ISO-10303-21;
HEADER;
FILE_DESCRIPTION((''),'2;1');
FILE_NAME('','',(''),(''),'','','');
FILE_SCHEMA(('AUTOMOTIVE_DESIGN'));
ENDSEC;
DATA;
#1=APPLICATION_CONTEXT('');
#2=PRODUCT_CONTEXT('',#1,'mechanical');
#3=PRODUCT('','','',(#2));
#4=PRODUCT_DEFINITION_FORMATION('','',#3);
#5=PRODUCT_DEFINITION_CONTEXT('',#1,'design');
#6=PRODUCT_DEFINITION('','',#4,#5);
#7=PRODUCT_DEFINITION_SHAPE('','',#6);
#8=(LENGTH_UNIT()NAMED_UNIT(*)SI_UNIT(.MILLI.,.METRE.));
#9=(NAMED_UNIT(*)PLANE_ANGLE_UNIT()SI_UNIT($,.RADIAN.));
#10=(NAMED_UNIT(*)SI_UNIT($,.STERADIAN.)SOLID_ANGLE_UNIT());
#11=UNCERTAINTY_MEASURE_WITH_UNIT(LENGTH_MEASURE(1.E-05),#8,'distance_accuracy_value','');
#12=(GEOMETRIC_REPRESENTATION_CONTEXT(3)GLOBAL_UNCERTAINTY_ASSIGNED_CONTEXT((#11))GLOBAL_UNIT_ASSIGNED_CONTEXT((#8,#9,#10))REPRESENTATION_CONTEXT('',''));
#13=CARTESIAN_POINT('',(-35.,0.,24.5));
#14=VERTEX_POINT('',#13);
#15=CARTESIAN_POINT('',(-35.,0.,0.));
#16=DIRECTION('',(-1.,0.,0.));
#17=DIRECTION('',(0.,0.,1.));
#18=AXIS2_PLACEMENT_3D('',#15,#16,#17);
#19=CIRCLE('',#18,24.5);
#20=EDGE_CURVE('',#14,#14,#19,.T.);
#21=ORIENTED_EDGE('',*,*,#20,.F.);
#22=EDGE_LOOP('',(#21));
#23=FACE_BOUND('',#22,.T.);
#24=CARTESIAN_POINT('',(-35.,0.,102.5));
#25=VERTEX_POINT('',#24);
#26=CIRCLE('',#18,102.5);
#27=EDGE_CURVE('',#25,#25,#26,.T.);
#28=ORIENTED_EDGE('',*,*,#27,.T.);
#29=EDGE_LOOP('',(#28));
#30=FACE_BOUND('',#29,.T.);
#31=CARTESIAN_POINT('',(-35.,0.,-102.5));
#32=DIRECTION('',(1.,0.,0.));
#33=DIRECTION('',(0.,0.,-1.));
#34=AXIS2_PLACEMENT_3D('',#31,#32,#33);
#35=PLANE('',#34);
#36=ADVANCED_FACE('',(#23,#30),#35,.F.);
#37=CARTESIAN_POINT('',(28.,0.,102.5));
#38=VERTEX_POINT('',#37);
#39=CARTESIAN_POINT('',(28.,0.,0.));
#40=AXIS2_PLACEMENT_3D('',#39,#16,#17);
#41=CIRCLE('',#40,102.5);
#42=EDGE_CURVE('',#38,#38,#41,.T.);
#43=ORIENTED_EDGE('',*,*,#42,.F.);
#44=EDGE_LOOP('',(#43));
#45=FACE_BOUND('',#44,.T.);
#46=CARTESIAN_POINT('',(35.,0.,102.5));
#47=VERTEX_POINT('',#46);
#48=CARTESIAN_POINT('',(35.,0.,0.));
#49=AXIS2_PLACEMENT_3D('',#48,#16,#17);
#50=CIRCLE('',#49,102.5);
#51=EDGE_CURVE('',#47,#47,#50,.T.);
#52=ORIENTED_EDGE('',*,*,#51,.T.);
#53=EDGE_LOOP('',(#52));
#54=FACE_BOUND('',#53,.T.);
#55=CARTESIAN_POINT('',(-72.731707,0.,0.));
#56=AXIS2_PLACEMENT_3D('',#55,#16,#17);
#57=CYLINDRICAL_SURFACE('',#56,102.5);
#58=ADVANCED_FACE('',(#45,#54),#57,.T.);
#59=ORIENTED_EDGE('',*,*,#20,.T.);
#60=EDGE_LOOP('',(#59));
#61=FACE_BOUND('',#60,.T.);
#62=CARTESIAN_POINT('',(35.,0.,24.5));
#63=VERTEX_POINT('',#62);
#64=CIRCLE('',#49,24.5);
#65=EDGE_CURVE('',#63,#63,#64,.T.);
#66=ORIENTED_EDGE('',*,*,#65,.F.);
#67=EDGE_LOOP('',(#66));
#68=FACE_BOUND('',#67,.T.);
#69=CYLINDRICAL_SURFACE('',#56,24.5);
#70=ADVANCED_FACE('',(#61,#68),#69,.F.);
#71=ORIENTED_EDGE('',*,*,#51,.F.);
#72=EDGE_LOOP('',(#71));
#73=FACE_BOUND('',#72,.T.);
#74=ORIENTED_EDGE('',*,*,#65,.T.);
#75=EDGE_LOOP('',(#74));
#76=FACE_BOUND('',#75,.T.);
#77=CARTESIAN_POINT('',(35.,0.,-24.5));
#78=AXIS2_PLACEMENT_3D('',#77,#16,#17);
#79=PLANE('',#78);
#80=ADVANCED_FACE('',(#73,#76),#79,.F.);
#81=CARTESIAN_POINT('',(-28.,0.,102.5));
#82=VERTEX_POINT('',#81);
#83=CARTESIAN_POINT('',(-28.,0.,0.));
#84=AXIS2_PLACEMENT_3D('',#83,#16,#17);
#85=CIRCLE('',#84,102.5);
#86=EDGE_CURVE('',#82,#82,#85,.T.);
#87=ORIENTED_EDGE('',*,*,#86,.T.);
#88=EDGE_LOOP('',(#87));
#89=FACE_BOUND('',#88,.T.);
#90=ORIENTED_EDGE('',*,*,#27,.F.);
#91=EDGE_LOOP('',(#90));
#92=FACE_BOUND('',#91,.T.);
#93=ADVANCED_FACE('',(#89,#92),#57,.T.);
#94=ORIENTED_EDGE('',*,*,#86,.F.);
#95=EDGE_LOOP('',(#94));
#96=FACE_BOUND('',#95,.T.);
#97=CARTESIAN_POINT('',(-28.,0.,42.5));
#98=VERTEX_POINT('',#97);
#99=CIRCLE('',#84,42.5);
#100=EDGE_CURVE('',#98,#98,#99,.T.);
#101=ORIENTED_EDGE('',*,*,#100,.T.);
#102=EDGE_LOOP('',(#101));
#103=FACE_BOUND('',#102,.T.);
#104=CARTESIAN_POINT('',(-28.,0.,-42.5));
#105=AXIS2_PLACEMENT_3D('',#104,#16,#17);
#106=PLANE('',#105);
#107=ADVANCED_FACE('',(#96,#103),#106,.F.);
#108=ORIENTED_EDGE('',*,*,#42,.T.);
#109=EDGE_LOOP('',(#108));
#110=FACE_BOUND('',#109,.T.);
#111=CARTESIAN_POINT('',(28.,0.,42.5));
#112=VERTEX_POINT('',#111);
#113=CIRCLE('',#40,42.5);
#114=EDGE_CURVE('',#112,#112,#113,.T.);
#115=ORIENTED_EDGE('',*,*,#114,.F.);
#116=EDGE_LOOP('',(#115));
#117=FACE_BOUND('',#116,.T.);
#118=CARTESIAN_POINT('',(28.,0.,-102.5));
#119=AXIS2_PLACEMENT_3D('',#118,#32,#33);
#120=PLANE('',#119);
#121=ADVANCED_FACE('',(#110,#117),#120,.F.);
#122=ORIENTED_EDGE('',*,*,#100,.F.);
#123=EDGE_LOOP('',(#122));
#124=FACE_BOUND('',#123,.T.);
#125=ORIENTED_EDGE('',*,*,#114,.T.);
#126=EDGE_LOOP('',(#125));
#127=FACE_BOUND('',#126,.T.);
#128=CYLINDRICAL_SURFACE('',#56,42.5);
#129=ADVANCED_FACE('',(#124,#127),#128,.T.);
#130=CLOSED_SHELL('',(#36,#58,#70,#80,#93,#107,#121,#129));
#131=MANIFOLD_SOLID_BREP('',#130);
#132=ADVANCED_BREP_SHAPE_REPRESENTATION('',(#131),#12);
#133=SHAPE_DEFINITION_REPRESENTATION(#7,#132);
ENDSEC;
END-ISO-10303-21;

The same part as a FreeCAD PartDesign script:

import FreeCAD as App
import Part
import Sketcher
from FreeCAD import Vector


def add_polygon(sketch, points):
    """Adds a closed chain of lines whose ends are joined by coincident constraints."""
    first, n = sketch.GeometryCount, len(points)
    for a, b in zip(points, points[1:] + points[:1]):
        sketch.addGeometry(Part.LineSegment(App.Vector(*a, 0), App.Vector(*b, 0)), False)
    for i in range(n):
        sketch.addConstraint(Sketcher.Constraint("Coincident", first + i, 2, first + (i + 1) % n, 1))

doc = App.newDocument("Part")
body = doc.addObject("PartDesign::Body", "Body")

# Sketch on XZ plane
sketch1 = body.newObject("Sketcher::SketchObject", "Sketch")
sketch1.AttachmentSupport = (doc.getObject("XZ_Plane"), [""])
sketch1.MapMode = "FlatFace"
add_polygon(sketch1, [(-35, -102), (-35, -24), (35, -24), (35, -102), (28, -102), (28, -42), (-28, -42), (-28, -102)])  # lines 0-7
sketch1.addConstraint([
    Sketcher.Constraint("Vertical", 0),
    Sketcher.Constraint("Horizontal", 1),
    Sketcher.Constraint("Vertical", 2),
    Sketcher.Constraint("Horizontal", 3),
    Sketcher.Constraint("Vertical", 4),
    Sketcher.Constraint("Horizontal", 5),
    Sketcher.Constraint("Vertical", 6),
    Sketcher.Constraint("Horizontal", 7),
    Sketcher.Constraint("Symmetric", 3, 2, 6, 2, -2),
    Sketcher.Constraint("Equal", 3, 7),
    Sketcher.Constraint("DistanceX", 1, 1, 1, 2, 70.0),
    Sketcher.Constraint("DistanceX", 3, 2, 3, 1, 7.0),
    Sketcher.Constraint("DistanceY", 0, 1, 0, 2, 78.0),
    Sketcher.Constraint("DistanceY", 4, 1, 4, 2, 60.0),
    Sketcher.Constraint("DistanceY", 0, 2, -1, 1, 24.5),
])
revolution = body.newObject("PartDesign::Revolution", "Revolution")
revolution.Profile = sketch1
revolution.ReferenceAxis = (sketch1, ["H_Axis"])
revolution.Angle = 360

doc.recompute()
